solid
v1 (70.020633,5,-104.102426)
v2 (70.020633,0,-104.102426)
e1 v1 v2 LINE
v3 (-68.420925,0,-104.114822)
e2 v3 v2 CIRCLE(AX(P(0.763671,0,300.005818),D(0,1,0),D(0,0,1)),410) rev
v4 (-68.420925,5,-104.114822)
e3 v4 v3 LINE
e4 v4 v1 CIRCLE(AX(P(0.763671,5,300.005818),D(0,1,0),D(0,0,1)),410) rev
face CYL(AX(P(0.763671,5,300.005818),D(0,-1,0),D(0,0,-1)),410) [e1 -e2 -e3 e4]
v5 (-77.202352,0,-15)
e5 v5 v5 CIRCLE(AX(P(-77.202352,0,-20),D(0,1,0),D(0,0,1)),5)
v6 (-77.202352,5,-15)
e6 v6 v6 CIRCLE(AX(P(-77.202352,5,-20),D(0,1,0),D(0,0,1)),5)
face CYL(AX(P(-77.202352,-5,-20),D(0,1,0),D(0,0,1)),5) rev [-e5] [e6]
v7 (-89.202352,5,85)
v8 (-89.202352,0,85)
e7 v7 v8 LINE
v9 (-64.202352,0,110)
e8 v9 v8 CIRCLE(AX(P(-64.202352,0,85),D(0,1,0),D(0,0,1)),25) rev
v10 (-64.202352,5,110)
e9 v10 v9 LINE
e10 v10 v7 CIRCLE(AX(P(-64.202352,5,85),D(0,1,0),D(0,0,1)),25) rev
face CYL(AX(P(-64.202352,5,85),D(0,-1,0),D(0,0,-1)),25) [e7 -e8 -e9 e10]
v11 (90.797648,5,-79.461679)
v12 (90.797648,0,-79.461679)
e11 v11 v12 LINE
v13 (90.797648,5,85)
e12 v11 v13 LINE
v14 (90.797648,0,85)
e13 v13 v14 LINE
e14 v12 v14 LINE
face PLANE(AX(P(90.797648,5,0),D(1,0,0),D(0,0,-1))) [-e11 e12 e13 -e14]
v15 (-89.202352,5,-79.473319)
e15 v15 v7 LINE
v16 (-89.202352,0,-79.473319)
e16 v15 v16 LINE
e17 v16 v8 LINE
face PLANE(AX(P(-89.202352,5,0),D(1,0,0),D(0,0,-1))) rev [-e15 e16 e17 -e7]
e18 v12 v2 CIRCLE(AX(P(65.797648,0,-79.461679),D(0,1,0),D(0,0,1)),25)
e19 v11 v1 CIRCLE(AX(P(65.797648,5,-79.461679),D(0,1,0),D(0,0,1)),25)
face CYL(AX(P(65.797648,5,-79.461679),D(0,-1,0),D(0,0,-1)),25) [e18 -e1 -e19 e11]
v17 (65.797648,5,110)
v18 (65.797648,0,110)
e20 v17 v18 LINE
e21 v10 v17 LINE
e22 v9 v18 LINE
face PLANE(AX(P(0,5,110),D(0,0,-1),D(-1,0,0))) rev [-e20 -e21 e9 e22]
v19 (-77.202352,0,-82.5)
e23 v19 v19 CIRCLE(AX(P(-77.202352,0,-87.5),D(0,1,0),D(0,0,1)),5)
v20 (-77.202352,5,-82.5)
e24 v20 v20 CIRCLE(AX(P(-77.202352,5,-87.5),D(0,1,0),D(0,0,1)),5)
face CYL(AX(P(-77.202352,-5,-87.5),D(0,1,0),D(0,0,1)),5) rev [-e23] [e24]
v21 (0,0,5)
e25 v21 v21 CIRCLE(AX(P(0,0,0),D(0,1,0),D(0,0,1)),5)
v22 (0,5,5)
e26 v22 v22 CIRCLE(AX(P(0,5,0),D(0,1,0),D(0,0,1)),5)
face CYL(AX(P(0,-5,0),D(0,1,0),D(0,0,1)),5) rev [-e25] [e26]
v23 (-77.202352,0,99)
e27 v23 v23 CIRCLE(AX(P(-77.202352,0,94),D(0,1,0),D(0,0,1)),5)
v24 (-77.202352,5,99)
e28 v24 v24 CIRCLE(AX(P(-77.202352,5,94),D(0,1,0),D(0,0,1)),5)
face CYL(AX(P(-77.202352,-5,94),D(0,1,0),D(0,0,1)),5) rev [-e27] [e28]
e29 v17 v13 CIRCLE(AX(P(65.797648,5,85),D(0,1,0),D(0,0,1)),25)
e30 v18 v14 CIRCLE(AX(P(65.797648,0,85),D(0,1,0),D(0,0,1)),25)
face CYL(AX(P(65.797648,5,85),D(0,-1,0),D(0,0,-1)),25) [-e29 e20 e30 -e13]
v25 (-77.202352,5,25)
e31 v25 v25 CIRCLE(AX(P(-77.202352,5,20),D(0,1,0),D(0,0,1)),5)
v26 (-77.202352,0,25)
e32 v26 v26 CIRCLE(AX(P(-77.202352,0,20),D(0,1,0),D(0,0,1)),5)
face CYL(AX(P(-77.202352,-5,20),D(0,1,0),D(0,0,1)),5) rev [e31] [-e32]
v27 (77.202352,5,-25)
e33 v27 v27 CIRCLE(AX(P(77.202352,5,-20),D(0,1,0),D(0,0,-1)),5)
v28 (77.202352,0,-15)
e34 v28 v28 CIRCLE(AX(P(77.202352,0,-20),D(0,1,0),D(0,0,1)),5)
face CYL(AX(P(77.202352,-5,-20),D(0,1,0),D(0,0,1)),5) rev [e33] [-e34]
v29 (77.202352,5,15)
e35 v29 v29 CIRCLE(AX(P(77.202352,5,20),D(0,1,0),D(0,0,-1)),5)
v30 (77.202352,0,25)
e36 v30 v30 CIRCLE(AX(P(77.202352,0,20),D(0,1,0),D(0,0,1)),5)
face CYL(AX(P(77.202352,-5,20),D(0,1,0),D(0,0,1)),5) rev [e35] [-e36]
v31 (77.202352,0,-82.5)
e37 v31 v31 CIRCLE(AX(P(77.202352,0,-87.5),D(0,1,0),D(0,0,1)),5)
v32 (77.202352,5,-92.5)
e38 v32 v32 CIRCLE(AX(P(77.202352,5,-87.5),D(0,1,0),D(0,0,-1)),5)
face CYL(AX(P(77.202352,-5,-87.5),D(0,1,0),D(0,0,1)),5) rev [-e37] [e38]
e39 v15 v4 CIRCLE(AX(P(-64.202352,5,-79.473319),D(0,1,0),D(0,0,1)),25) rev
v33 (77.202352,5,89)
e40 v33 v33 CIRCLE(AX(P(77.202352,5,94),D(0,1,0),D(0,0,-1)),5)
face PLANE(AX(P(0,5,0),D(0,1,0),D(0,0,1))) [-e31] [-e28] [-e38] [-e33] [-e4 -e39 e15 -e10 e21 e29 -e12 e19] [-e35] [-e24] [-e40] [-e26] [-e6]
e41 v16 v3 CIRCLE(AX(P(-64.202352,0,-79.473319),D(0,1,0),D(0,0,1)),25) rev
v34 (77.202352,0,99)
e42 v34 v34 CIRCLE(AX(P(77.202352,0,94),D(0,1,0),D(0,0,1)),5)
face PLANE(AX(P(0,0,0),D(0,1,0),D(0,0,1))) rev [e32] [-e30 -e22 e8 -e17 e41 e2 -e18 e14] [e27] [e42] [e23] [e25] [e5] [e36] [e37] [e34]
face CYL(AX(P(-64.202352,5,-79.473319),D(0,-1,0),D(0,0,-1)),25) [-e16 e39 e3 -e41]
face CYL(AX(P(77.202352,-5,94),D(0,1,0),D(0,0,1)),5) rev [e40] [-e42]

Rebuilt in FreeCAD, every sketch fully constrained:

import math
import FreeCAD as App
import Part
import Sketcher

V = App.Vector
Q = App.Units.Quantity

doc = App.newDocument("Part")
params = doc.addObject("Spreadsheet::Sheet", "Params")
for row, (alias, value) in enumerate([
    ("sketch1_radius", "25 mm"),
    ("sketch1_radius2", "410 mm"),
    ("sketch1_width", "130 mm"),
    ("pad1_length", "5 mm"),
    ("sketch2_diameter", "10 mm"),
    ("pocket1_length", "10 mm"),
], start=1):
    params.set(f"A{row}", alias)
    params.set(f"B{row}", "=" + value)
    params.setAlias(f"B{row}", alias)

body = doc.addObject("PartDesign::Body", "Body")

# Sketch on XZ plane
sketch1 = body.newObject("Sketcher::SketchObject", "Sketch")
sketch1.AttachmentSupport = (doc.getObject("XZ_Plane"), [""])
sketch1.MapMode = "FlatFace"
sketch1.addGeometry([
    Part.ArcOfCircle(Part.Circle(V(-64.202352, 85, 0), V(0, 0, 1), 25), math.radians(90), math.radians(180)),  # 0
    Part.LineSegment(V(-64.202352, 110, 0), V(65.797648, 110, 0)),  # 1
    Part.ArcOfCircle(Part.Circle(V(65.797648, 85, 0), V(0, 0, 1), 25), math.radians(0), math.radians(90)),  # 2
    Part.LineSegment(V(90.797648, 85, 0), V(90.797648, -79.461679, 0)),  # 3
    Part.ArcOfCircle(Part.Circle(V(65.797648, -79.461679, 0), V(0, 0, 1), 25), math.radians(-80.275002), math.radians(0)),  # 4
    Part.ArcOfCircle(Part.Circle(V(0.763671, 300.005818, 0), V(0, 0, 1), 410), math.radians(-99.714738), math.radians(-80.275002)),  # 5
    Part.ArcOfCircle(Part.Circle(V(-64.202352, -79.473319, 0), V(0, 0, 1), 25), math.radians(180), math.radians(260.285262)),  # 6
    Part.LineSegment(V(-89.202352, -79.473319, 0), V(-89.202352, 85, 0)),  # 7
], False)
sketch1.addConstraint([
    Sketcher.Constraint("Tangent", 0, 1, 1, 1),
    Sketcher.Constraint("Tangent", 1, 2, 2, 2),
    Sketcher.Constraint("Tangent", 2, 1, 3, 1),
    Sketcher.Constraint("Tangent", 3, 2, 4, 2),
    Sketcher.Constraint("Tangent", 4, 1, 5, 2),
    Sketcher.Constraint("Tangent", 5, 1, 6, 2),
    Sketcher.Constraint("Tangent", 6, 1, 7, 1),
    Sketcher.Constraint("Tangent", 7, 2, 0, 2),
    Sketcher.Constraint("Horizontal", 1),
    Sketcher.Constraint("Vertical", 3),
    Sketcher.Constraint("Vertical", 7),
    Sketcher.Constraint("Equal", 0, 2),
    Sketcher.Constraint("Equal", 2, 4),
    Sketcher.Constraint("Equal", 4, 6),
    Sketcher.Constraint("Radius", 0, Q("25 mm")),
    Sketcher.Constraint("Radius", 5, Q("410 mm")),
    Sketcher.Constraint("DistanceX", 1, 1, 1, 2, Q("130 mm")),
    Sketcher.Constraint("DistanceY", -1, 1, 0, 3, Q("85 mm")),
    Sketcher.Constraint("DistanceY", 3, 2, 3, 1, Q("164.461679 mm")),
    Sketcher.Constraint("DistanceY", 7, 1, 7, 2, Q("164.473319 mm")),
    Sketcher.Constraint("DistanceX", -1, 1, 5, 3, Q("0.763671 mm")),
])
sketch1.setExpression("Constraints[14]", "Params.sketch1_radius")
sketch1.setExpression("Constraints[15]", "Params.sketch1_radius2")
sketch1.setExpression("Constraints[16]", "Params.sketch1_width")
pad1 = body.newObject("PartDesign::Pad", "Pad")
pad1.Profile = sketch1
pad1.setExpression("Length", "Params.pad1_length")
pad1.Reversed = True

# Sketch on XZ plane
sketch2 = body.newObject("Sketcher::SketchObject", "Sketch001")
sketch2.AttachmentSupport = (doc.getObject("XZ_Plane"), [""])
sketch2.MapMode = "FlatFace"
sketch2.AttachmentOffset = App.Placement(V(0, 0, -5), App.Rotation())
sketch2.addGeometry([
    Part.Circle(V(-77.202352, -20, 0), V(0, 0, 1), 5),  # 0
    Part.Circle(V(-77.202352, 20, 0), V(0, 0, 1), 5),  # 1
    Part.Circle(V(-77.202352, -87.5, 0), V(0, 0, 1), 5),  # 2
    Part.Circle(V(-77.202352, 94, 0), V(0, 0, 1), 5),  # 3
    Part.Circle(V(0, 0, 0), V(0, 0, 1), 5),  # 4
    Part.Circle(V(77.202352, 94, 0), V(0, 0, 1), 5),  # 5
    Part.Circle(V(77.202352, 20, 0), V(0, 0, 1), 5),  # 6
    Part.Circle(V(77.202352, -20, 0), V(0, 0, 1), 5),  # 7
    Part.Circle(V(77.202352, -87.5, 0), V(0, 0, 1), 5),  # 8
], False)
sketch2.addConstraint([
    Sketcher.Constraint("Coincident", 4, 3, -1, 1),
    Sketcher.Constraint("Equal", 0, 1),
    Sketcher.Constraint("Equal", 1, 2),
    Sketcher.Constraint("Equal", 2, 3),
    Sketcher.Constraint("Equal", 3, 4),
    Sketcher.Constraint("Equal", 4, 5),
    Sketcher.Constraint("Equal", 5, 6),
    Sketcher.Constraint("Equal", 6, 7),
    Sketcher.Constraint("Equal", 7, 8),
    Sketcher.Constraint("Symmetric", 0, 3, 6, 3, -1, 1),
    Sketcher.Constraint("Symmetric", 1, 3, 7, 3, -1, 1),
    Sketcher.Constraint("Symmetric", 3, 3, 5, 3, -2),
    Sketcher.Constraint("Symmetric", 1, 3, 6, 3, -2),
    Sketcher.Constraint("Symmetric", 2, 3, 8, 3, -2),
    Sketcher.Constraint("Vertical", 1, 3, 2, 3),
    Sketcher.Constraint("Vertical", 2, 3, 3, 3),
    Sketcher.Constraint("Diameter", 0, Q("10 mm")),
    Sketcher.Constraint("DistanceY", 0, 3, -1, 1, Q("20 mm")),
    Sketcher.Constraint("DistanceY", -1, 1, 3, 3, Q("94 mm")),
    Sketcher.Constraint("DistanceY", 2, 3, -1, 1, Q("87.5 mm")),
    Sketcher.Constraint("DistanceX", 0, 3, -1, 1, Q("77.202352 mm")),
])
sketch2.setExpression("Constraints[16]", "Params.sketch2_diameter")
pocket1 = body.newObject("PartDesign::Pocket", "Pocket")
pocket1.Profile = sketch2
pocket1.setExpression("Length", "Params.pocket1_length")
pocket1.Reversed = True

doc.recompute()
